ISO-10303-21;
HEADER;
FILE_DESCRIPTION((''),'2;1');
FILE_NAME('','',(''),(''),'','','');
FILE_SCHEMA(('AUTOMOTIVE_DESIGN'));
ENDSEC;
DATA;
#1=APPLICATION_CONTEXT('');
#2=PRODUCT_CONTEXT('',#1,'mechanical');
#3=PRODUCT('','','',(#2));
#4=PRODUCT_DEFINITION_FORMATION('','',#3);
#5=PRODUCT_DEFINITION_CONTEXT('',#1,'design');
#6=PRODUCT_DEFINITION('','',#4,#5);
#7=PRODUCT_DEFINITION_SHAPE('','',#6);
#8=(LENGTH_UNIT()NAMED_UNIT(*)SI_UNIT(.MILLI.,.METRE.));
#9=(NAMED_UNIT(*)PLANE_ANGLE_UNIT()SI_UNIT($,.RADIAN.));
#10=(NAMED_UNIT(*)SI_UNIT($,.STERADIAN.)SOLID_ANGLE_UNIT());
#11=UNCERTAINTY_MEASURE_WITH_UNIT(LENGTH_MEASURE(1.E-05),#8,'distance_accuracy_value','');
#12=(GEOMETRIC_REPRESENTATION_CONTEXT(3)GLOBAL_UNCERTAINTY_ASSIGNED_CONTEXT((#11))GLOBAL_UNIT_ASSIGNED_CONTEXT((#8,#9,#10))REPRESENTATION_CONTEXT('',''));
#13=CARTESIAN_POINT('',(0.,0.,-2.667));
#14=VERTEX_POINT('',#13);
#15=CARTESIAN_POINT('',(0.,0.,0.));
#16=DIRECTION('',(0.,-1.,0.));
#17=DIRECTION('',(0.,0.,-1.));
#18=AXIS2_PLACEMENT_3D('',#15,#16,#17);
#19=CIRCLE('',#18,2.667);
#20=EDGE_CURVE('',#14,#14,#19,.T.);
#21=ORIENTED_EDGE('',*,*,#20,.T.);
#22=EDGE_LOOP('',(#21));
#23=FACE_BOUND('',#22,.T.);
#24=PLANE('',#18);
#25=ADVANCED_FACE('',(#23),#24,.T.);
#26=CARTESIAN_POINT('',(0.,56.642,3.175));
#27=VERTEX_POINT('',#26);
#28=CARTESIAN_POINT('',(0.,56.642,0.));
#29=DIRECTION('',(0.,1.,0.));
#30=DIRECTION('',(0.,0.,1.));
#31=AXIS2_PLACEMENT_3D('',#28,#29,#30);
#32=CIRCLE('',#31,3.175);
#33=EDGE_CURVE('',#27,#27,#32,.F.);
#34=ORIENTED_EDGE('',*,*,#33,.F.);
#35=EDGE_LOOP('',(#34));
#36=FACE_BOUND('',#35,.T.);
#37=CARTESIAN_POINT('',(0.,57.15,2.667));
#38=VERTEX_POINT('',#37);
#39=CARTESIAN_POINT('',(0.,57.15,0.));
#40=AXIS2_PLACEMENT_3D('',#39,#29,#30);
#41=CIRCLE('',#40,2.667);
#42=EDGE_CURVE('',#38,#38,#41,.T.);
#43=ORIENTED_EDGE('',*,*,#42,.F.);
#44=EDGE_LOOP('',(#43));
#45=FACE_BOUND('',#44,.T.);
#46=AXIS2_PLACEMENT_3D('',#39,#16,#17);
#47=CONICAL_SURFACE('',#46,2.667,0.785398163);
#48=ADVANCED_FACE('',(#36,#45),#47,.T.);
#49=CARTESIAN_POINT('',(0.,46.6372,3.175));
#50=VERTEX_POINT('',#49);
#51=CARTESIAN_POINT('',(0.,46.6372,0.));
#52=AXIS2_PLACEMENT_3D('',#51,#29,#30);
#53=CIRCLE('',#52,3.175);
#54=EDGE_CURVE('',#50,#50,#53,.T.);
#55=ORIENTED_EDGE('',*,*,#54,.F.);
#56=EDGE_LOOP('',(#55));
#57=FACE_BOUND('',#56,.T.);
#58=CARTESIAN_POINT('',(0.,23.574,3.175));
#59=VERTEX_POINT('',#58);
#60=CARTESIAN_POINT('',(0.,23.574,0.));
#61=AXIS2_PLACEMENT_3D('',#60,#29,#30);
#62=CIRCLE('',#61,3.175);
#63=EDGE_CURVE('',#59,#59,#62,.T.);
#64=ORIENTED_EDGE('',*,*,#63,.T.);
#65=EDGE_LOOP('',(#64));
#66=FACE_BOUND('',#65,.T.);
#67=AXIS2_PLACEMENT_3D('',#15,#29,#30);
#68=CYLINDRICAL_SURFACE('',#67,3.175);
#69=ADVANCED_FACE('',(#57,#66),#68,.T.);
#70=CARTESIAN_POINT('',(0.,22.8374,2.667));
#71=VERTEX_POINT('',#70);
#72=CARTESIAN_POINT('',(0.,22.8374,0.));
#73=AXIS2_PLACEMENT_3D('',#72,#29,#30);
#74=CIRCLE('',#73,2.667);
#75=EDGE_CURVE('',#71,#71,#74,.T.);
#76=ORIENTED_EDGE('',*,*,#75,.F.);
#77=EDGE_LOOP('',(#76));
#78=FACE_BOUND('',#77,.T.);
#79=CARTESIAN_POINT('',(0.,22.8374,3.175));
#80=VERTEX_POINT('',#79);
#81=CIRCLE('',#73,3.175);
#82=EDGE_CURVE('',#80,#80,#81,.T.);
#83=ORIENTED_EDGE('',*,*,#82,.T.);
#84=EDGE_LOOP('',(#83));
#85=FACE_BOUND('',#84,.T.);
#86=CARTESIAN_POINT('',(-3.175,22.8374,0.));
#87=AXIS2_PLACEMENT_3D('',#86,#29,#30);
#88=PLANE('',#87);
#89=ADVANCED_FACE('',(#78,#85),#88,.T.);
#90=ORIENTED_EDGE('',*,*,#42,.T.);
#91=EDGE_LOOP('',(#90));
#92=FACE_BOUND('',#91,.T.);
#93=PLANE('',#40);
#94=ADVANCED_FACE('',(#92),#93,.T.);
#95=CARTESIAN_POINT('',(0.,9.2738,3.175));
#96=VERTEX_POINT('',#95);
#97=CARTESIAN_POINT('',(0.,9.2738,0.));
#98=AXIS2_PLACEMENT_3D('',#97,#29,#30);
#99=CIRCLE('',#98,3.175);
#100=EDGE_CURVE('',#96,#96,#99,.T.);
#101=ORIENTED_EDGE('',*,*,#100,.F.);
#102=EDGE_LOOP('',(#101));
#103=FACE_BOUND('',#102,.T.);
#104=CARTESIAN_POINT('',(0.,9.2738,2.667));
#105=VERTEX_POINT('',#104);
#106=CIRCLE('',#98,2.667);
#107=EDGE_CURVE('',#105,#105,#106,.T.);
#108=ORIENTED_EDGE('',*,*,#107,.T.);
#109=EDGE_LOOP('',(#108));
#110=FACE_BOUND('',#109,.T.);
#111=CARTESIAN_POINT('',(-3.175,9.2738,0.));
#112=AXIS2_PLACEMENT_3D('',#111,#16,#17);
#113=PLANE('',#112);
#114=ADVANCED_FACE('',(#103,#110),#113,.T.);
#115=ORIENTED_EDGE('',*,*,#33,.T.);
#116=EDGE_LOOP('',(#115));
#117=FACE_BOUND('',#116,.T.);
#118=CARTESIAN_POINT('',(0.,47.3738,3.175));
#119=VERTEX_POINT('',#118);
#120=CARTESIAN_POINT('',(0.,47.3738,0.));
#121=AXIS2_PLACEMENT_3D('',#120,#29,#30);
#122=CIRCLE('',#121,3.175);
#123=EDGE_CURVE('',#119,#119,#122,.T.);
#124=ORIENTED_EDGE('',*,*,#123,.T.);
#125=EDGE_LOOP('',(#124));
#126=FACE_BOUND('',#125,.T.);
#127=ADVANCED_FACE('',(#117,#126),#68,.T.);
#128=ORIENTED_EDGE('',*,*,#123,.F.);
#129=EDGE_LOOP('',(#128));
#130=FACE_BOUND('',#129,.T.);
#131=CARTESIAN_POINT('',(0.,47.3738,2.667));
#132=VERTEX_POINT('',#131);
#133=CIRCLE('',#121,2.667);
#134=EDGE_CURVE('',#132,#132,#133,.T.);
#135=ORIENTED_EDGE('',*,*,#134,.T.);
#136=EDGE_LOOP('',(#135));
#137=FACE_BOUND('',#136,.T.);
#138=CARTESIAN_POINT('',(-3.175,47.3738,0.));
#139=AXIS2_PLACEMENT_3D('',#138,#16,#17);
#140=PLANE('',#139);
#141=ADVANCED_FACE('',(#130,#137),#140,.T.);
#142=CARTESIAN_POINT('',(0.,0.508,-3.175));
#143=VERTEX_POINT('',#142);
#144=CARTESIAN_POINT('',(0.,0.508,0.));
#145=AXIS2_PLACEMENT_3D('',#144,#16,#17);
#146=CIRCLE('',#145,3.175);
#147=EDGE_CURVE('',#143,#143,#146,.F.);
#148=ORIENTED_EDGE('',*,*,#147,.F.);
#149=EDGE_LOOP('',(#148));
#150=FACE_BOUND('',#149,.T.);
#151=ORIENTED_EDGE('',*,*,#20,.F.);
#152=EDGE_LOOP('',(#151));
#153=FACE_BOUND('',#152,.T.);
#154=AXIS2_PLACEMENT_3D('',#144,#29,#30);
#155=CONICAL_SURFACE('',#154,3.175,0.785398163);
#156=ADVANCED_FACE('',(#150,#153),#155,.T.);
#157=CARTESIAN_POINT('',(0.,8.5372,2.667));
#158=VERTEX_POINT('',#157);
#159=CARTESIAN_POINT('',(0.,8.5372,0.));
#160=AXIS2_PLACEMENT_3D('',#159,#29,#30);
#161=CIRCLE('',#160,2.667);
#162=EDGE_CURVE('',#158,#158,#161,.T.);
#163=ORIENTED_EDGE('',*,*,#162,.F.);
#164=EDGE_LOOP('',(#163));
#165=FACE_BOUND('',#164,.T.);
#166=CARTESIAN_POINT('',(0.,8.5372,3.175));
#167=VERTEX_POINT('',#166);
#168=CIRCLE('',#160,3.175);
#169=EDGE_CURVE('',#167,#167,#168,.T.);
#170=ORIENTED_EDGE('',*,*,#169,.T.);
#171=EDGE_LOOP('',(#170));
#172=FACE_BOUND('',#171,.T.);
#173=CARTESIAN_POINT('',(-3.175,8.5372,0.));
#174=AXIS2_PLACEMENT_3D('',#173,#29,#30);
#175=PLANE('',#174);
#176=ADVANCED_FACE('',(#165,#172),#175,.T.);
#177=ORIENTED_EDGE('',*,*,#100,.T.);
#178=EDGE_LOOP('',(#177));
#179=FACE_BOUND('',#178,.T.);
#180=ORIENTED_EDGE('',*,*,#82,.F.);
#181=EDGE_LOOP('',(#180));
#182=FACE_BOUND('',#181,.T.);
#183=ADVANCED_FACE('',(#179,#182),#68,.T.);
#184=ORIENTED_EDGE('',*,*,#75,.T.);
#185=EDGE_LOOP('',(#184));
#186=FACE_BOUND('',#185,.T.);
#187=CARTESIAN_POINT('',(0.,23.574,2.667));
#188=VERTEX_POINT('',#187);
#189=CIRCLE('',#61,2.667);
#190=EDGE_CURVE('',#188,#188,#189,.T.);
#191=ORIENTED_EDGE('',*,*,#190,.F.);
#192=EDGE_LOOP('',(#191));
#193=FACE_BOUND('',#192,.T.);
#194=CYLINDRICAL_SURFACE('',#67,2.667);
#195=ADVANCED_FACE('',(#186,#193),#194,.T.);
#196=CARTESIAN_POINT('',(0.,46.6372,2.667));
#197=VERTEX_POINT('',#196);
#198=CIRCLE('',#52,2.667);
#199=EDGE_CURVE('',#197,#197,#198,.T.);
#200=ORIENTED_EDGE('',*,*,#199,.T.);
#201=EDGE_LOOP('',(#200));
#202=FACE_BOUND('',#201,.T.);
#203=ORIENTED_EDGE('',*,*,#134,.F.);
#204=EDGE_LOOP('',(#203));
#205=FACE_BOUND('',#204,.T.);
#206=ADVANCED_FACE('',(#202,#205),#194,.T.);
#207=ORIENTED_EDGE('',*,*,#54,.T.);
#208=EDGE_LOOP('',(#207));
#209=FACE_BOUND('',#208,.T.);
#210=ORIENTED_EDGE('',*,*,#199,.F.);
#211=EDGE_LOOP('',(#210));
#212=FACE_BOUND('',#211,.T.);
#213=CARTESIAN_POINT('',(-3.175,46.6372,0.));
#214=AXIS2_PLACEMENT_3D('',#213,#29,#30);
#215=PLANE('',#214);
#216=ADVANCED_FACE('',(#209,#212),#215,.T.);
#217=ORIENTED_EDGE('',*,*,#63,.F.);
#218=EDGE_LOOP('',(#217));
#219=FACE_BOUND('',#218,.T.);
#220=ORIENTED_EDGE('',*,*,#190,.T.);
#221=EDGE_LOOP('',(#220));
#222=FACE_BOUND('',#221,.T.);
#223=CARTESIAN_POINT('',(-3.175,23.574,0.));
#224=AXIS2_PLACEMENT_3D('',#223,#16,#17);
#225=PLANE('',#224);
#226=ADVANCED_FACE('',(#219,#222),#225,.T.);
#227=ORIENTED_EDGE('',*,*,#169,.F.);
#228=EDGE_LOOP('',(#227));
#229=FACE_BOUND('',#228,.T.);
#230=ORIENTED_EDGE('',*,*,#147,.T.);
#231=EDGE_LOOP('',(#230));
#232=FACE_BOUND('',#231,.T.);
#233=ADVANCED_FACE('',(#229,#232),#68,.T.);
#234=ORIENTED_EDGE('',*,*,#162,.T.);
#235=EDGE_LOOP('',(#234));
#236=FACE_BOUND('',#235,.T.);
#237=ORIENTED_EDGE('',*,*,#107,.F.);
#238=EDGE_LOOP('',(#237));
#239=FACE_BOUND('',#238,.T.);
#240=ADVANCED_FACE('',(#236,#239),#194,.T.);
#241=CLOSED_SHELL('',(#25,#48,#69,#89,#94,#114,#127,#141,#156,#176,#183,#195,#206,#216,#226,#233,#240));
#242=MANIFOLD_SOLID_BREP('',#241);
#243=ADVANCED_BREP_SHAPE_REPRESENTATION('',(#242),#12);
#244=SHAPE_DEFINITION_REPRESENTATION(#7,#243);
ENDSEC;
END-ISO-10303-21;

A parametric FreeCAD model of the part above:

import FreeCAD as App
import Part
import Sketcher

V = App.Vector
Q = App.Units.Quantity


def edges_at(feature, points):
    """Names of the edges that pass closest to the given points."""
    edges = feature.Shape.Edges
    near = lambda p: min(range(len(edges)), key=lambda i: edges[i].distToShape(Part.Vertex(*p))[0])
    return sorted({f"Edge{near(p) + 1}" for p in points})


def add_polygon(sketch, points):
    """Adds a closed chain of lines whose ends are joined by coincident constraints."""
    first, n = sketch.GeometryCount, len(points)
    for a, b in zip(points, points[1:] + points[:1]):
        sketch.addGeometry(Part.LineSegment(App.Vector(*a, 0), App.Vector(*b, 0)), False)
    for i in range(n):
        sketch.addConstraint(Sketcher.Constraint("Coincident", first + i, 2, first + (i + 1) % n, 1))

doc = App.newDocument("Part")
params = doc.addObject("Spreadsheet::Sheet", "Params")
for row, (alias, value) in enumerate([
    ("sketch1_width", "0.02 in"),
    ("sketch1_height", "2.25 in"),
    ("sketch1_width2", "0.125 in"),
    ("sketch1_height2", "0.029 in"),
    ("sketch1_height3", "0.908 in"),
    ("revolution_angle", "360 deg"),
    ("chamfer_size", "0.02 in"),
], start=1):
    params.set(f"A{row}", alias)
    params.set(f"B{row}", "=" + value)
    params.setAlias(f"B{row}", alias)

body = doc.addObject("PartDesign::Body", "Body")

sketch1 = body.newObject("Sketcher::SketchObject", "Sketch")
sketch1.AttachmentSupport = (doc.getObject("XY_Plane"), [""])
sketch1.MapMode = "FlatFace"
add_polygon(sketch1, [(-3.175, 57.15), (-3.175, 47.3738), (-2.667, 47.3738), (-2.667, 46.6372), (-3.175, 46.6372), (-3.175, 23.574), (-2.667, 23.574), (-2.667, 22.8374), (-3.175, 22.8374), (-3.175, 9.2738), (-2.667, 9.2738), (-2.667, 8.5372), (-3.175, 8.5372), (-3.175, 0), (0, 0), (0, 57.15)])
sketch1.addConstraint(Sketcher.Constraint("Vertical", 0))
sketch1.addConstraint(Sketcher.Constraint("Horizontal", 1))
sketch1.addConstraint(Sketcher.Constraint("Vertical", 2))
sketch1.addConstraint(Sketcher.Constraint("Horizontal", 3))
sketch1.addConstraint(Sketcher.Constraint("Vertical", 4))
sketch1.addConstraint(Sketcher.Constraint("Horizontal", 5))
sketch1.addConstraint(Sketcher.Constraint("Vertical", 6))
sketch1.addConstraint(Sketcher.Constraint("Horizontal", 7))
sketch1.addConstraint(Sketcher.Constraint("Vertical", 8))
sketch1.addConstraint(Sketcher.Constraint("Horizontal", 9))
sketch1.addConstraint(Sketcher.Constraint("Vertical", 10))
sketch1.addConstraint(Sketcher.Constraint("Horizontal", 11))
sketch1.addConstraint(Sketcher.Constraint("Vertical", 12))
sketch1.addConstraint(Sketcher.Constraint("Horizontal", 13))
sketch1.addConstraint(Sketcher.Constraint("Vertical", 14))
sketch1.addConstraint(Sketcher.Constraint("Horizontal", 15))
sketch1.addConstraint(Sketcher.Constraint("Coincident", 13, 2, -1, 1))
sketch1.addConstraint(Sketcher.Constraint("Vertical", 0, 2, 3, 2))
sketch1.addConstraint(Sketcher.Constraint("Vertical", 2, 2, 5, 2))
sketch1.addConstraint(Sketcher.Constraint("Vertical", 4, 2, 7, 2))
sketch1.addConstraint(Sketcher.Constraint("Vertical", 6, 2, 9, 2))
sketch1.addConstraint(Sketcher.Constraint("Vertical", 8, 2, 11, 2))
sketch1.addConstraint(Sketcher.Constraint("Equal", 2, 6))
sketch1.addConstraint(Sketcher.Constraint("Equal", 6, 10))
sketch1.addConstraint(Sketcher.Constraint("DistanceX", 1, 1, 1, 2, Q("0.02 in")))
sketch1.addConstraint(Sketcher.Constraint("DistanceY", 14, 1, 14, 2, Q("2.25 in")))
sketch1.addConstraint(Sketcher.Constraint("DistanceX", 13, 1, 13, 2, Q("0.125 in")))
sketch1.addConstraint(Sketcher.Constraint("DistanceY", 2, 2, 2, 1, Q("0.029 in")))
sketch1.addConstraint(Sketcher.Constraint("DistanceY", 4, 2, 4, 1, Q("0.908 in")))
sketch1.addConstraint(Sketcher.Constraint("DistanceY", 8, 2, 8, 1, Q("0.534 in")))
sketch1.addConstraint(Sketcher.Constraint("DistanceY", 0, 2, 0, 1, Q("9.7762 mm")))
sketch1.setExpression("Constraints[40]", "Params.sketch1_width")
sketch1.setExpression("Constraints[41]", "Params.sketch1_height")
sketch1.setExpression("Constraints[42]", "Params.sketch1_width2")
sketch1.setExpression("Constraints[43]", "Params.sketch1_height2")
sketch1.setExpression("Constraints[44]", "Params.sketch1_height3")
revolution = body.newObject("PartDesign::Revolution", "Revolution")
revolution.Profile = sketch1
revolution.ReferenceAxis = (sketch1, ["V_Axis"])
revolution.setExpression("Angle", "Params.revolution_angle")
doc.recompute()

chamfer = body.newObject("PartDesign::Chamfer", "Chamfer")
chamfer.Base = (revolution, edges_at(revolution, [(3.175, 0, 0), (3.175, 57.15, 0)]))
chamfer.setExpression("Size", "Params.chamfer_size")

doc.recompute()
